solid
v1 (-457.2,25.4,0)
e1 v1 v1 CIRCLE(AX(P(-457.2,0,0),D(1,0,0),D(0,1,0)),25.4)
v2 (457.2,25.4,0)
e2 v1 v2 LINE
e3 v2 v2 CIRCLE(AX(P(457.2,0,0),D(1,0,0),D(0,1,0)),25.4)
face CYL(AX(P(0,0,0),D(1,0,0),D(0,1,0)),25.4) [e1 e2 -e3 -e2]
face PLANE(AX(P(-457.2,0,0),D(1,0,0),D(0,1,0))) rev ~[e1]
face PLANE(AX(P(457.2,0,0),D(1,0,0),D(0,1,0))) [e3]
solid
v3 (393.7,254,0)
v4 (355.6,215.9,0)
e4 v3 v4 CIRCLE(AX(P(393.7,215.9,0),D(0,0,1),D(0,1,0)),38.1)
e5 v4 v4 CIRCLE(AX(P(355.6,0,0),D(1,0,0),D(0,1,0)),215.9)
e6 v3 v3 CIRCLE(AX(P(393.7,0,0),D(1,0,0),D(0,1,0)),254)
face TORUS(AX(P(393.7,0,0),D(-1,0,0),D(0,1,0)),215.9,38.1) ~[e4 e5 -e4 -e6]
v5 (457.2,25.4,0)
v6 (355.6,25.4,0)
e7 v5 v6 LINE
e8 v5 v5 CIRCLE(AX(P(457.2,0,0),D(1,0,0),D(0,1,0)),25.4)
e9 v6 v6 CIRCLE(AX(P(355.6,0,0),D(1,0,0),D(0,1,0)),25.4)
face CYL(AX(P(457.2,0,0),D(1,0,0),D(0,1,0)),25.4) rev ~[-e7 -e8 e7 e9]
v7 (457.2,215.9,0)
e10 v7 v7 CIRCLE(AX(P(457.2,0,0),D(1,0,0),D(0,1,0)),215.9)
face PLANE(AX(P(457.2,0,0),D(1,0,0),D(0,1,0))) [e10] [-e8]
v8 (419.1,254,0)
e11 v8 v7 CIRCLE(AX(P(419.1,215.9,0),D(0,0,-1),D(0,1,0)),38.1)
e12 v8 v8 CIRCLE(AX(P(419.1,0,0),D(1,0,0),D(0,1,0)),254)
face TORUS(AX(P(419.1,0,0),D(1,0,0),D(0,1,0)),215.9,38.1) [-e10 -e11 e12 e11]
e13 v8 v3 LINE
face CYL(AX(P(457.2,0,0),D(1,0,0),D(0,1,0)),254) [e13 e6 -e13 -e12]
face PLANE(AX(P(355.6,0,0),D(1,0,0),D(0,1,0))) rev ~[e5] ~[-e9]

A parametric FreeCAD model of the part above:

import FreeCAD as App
import Part
import Sketcher

V = App.Vector
Q = App.Units.Quantity


def edges_at(feature, points):
    """Names of the edges that pass closest to the given points."""
    edges = feature.Shape.Edges
    near = lambda p: min(range(len(edges)), key=lambda i: edges[i].distToShape(Part.Vertex(*p))[0])
    return sorted({f"Edge{near(p) + 1}" for p in points})

doc = App.newDocument("Part")
body = doc.addObject("PartDesign::Body", "Body")

sketch1 = doc.addObject("Sketcher::SketchObject", "Sketch")
body.addObject(sketch1)
sketch1.AttachmentSupport = (doc.YZ_Plane, [""])
sketch1.MapMode = "FlatFace"
sketch1.addGeometry(Part.Circle(V(0, 0, 0), V(0, 0, 1), 25), False)
sketch1.addConstraint(Sketcher.Constraint("Coincident", 0, 3, -1, 1))
sketch1.addConstraint(Sketcher.Constraint("Diameter", 0, Q("2 in")))
pad1 = doc.addObject("PartDesign::Pad", "Pad")
body.addObject(pad1)
pad1.Profile = sketch1
pad1.Length = Q("36 in")
pad1.Midplane = True
body2 = doc.addObject("PartDesign::Body", "Body001")

sketch2 = doc.addObject("Sketcher::SketchObject", "Sketch001")
body2.addObject(sketch2)
sketch2.AttachmentSupport = (doc.getObject("YZ_Plane001"), [""])
sketch2.MapMode = "FlatFace"
sketch2.AttachmentOffset = App.Placement(V(0, 0, 18 * 25.4), App.Rotation())
sketch2.addGeometry(Part.Circle(V(0, 0, 0), V(0, 0, 1), 254), False)
sketch2.addGeometry(Part.Circle(V(0, 0, 0), V(0, 0, 1), 25), False)
sketch2.addConstraint(Sketcher.Constraint("Coincident", 0, 3, -1, 1))
sketch2.addConstraint(Sketcher.Constraint("Coincident", 1, 3, -1, 1))
sketch2.addConstraint(Sketcher.Constraint("Diameter", 0, Q("20 in")))
sketch2.addConstraint(Sketcher.Constraint("Diameter", 1, Q("2 in")))
pad2 = doc.addObject("PartDesign::Pad", "Pad001")
body2.addObject(pad2)
pad2.Profile = sketch2
pad2.Length = Q("4 in")
pad2.Reversed = True
doc.recompute()

fillet = doc.addObject("PartDesign::Fillet", "Fillet")
body2.addObject(fillet)
fillet.Base = (pad2, edges_at(pad2, [(457.2, -254, 0), (355.6, -254, 0)]))
fillet.Radius = Q("1.5 in")

doc.recompute()
